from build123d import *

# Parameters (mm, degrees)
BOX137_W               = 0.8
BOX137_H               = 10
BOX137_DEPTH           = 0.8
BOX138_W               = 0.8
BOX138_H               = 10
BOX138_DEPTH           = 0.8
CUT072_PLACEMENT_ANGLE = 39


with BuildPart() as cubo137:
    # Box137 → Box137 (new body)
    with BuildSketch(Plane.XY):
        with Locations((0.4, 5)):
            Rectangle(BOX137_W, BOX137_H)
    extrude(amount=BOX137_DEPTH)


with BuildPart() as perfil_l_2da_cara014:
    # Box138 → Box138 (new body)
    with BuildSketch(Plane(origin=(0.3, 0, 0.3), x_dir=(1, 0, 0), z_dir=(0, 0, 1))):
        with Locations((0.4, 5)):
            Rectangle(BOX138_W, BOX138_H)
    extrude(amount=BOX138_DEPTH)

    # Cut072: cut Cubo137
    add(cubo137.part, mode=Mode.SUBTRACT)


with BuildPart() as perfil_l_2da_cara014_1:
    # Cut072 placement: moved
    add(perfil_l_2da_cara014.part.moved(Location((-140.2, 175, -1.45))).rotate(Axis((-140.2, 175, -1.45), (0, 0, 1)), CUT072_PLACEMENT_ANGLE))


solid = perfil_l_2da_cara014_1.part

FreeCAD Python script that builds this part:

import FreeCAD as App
import Part
import Sketcher
Q = App.Units.Quantity

doc = App.newDocument("Part")
body = doc.addObject("PartDesign::Body", "Body")

sketch1 = body.newObject("Sketcher::SketchObject", "Sketch")
sketch1.AttachmentSupport = (doc.getObject("XY_Plane"), [""])
sketch1.MapMode = "FlatFace"
sketch1.addGeometry([
    Part.LineSegment(App.Vector(0, 10, 0), App.Vector(0, 0, 0)),
    Part.LineSegment(App.Vector(0, 0, 0), App.Vector(0.8, 0, 0)),
    Part.LineSegment(App.Vector(0.8, 0, 0), App.Vector(0.8, 10, 0)),
    Part.LineSegment(App.Vector(0.8, 10, 0), App.Vector(0, 10, 0)),
], False)
sketch1.addConstraint([
    Sketcher.Constraint("Coincident", 0, 2, 1, 1),
    Sketcher.Constraint("Coincident", 1, 2, 2, 1),
    Sketcher.Constraint("Coincident", 2, 2, 3, 1),
    Sketcher.Constraint("Coincident", 3, 2, 0, 1),
    Sketcher.Constraint("Vertical", 0),
    Sketcher.Constraint("Horizontal", 1),
    Sketcher.Constraint("Vertical", 2),
    Sketcher.Constraint("Horizontal", 3),
    Sketcher.Constraint("Coincident", 0, 2, -1, 1),
    Sketcher.Constraint("DistanceY", 0, 2, 0, 1, Q("10 mm")),
    Sketcher.Constraint("DistanceX", 1, 1, 1, 2, Q("0.8 mm")),
])
pad1 = body.newObject("PartDesign::Pad", "Pad")
pad1.Profile = sketch1
pad1.Length = 0.8
body2 = doc.addObject("PartDesign::Body", "Body001")

sketch2 = body2.newObject("Sketcher::SketchObject", "Sketch001")
sketch2.AttachmentSupport = (doc.getObject("XY_Plane001"), [""])
sketch2.MapMode = "FlatFace"
sketch2.AttachmentOffset = App.Placement(App.Vector(0, 0, 0.3), App.Rotation())
sketch2.addGeometry([
    Part.LineSegment(App.Vector(0.3, 10, 0), App.Vector(0.3, 0, 0)),
    Part.LineSegment(App.Vector(0.3, 0, 0), App.Vector(1.1, 0, 0)),
    Part.LineSegment(App.Vector(1.1, 0, 0), App.Vector(1.1, 10, 0)),
    Part.LineSegment(App.Vector(1.1, 10, 0), App.Vector(0.3, 10, 0)),
], False)
sketch2.addConstraint([
    Sketcher.Constraint("Coincident", 0, 2, 1, 1),
    Sketcher.Constraint("Coincident", 1, 2, 2, 1),
    Sketcher.Constraint("Coincident", 2, 2, 3, 1),
    Sketcher.Constraint("Coincident", 3, 2, 0, 1),
    Sketcher.Constraint("Vertical", 0),
    Sketcher.Constraint("Horizontal", 1),
    Sketcher.Constraint("Vertical", 2),
    Sketcher.Constraint("Horizontal", 3),
    Sketcher.Constraint("PointOnObject", 0, 2, -1),
    Sketcher.Constraint("DistanceY", 0, 2, 0, 1, Q("10 mm")),
    Sketcher.Constraint("DistanceX", 1, 1, 1, 2, Q("0.8 mm")),
    Sketcher.Constraint("DistanceX", -1, 1, 0, 2, Q("0.3 mm")),
])
pad2 = body2.newObject("PartDesign::Pad", "Pad001")
pad2.Profile = sketch2
pad2.Length = 0.8
doc.recompute()

boolean = body2.newObject("PartDesign::Boolean", "Boolean")
boolean.Type = "Cut"
boolean.addObjects([body])
body3 = doc.addObject("PartDesign::Body", "Body002")
doc.recompute()

body2.Placement = App.Placement(App.Vector(-140.2, 175, -1.45), App.Rotation(App.Vector(0, 0, 1), 39))
boolean2 = body3.newObject("PartDesign::Boolean", "Boolean001")
boolean2.Type = "Fuse"
boolean2.addObjects([body2])

doc.recompute()
